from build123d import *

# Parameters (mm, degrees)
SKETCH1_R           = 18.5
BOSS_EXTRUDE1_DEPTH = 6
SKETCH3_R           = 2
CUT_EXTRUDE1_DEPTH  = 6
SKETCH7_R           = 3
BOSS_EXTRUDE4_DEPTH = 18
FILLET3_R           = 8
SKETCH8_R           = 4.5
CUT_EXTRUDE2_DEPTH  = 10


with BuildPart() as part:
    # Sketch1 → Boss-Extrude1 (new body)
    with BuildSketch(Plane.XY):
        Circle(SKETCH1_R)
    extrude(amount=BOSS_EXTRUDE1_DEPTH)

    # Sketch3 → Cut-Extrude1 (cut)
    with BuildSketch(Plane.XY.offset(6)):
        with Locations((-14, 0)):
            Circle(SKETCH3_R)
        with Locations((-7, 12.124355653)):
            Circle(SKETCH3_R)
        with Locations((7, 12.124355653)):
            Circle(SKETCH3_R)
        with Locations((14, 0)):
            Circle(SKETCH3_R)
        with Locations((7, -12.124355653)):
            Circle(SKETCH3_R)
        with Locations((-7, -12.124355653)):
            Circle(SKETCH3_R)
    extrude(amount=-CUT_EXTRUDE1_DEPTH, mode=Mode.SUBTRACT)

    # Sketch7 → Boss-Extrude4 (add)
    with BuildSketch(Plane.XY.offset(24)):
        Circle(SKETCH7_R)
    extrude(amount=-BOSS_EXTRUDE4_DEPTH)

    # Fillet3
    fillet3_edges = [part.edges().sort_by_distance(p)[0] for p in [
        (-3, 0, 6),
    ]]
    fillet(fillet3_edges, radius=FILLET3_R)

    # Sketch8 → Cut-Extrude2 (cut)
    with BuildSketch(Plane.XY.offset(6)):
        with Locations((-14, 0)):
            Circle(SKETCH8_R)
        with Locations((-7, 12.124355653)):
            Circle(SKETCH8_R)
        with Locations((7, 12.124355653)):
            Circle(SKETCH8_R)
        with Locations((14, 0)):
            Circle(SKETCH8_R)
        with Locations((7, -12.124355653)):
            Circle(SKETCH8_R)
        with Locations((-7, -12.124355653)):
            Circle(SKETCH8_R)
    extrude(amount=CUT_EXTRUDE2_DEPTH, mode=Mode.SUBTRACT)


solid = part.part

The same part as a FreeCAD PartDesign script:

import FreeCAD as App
import Part
import Sketcher
Q = App.Units.Quantity


def edges_at(feature, points):
    """Names of the edges that pass closest to the given points."""
    edges = feature.Shape.Edges
    near = lambda p: min(range(len(edges)), key=lambda i: edges[i].distToShape(Part.Vertex(*p))[0])
    return sorted({f"Edge{near(p) + 1}" for p in points})

doc = App.newDocument("Part")
body = doc.addObject("PartDesign::Body", "Body")

# Sketch on XY plane
sketch1 = doc.addObject("Sketcher::SketchObject", "Sketch")
body.addObject(sketch1)
sketch1.AttachmentSupport = (doc.XY_Plane, [""])
sketch1.MapMode = "FlatFace"
sketch1.addGeometry(Part.Circle(App.Vector(0, 0, 0), App.Vector(0, 0, 1), 18.5), False)
sketch1.addConstraint([
    Sketcher.Constraint("Coincident", 0, 3, -1, 1),
    Sketcher.Constraint("Diameter", 0, Q("37 mm")),
])
pad1 = doc.addObject("PartDesign::Pad", "Pad")
body.addObject(pad1)
pad1.Profile = sketch1
pad1.Length = 6

# Sketch on XY plane
sketch2 = doc.addObject("Sketcher::SketchObject", "Sketch001")
body.addObject(sketch2)
sketch2.AttachmentSupport = (doc.XY_Plane, [""])
sketch2.MapMode = "FlatFace"
sketch2.AttachmentOffset = App.Placement(App.Vector(0, 0, 6), App.Rotation())
sketch2.addGeometry([
    Part.Circle(App.Vector(-14, 0, 0), App.Vector(0, 0, 1), 2),  # 0
    Part.Circle(App.Vector(-7, 12.124356, 0), App.Vector(0, 0, 1), 2),  # 1
    Part.Circle(App.Vector(7, 12.124356, 0), App.Vector(0, 0, 1), 2),  # 2
    Part.Circle(App.Vector(14, 0, 0), App.Vector(0, 0, 1), 2),  # 3
    Part.Circle(App.Vector(7, -12.124356, 0), App.Vector(0, 0, 1), 2),  # 4
    Part.Circle(App.Vector(-7, -12.124356, 0), App.Vector(0, 0, 1), 2),  # 5
], False)
sketch2.addConstraint([
    Sketcher.Constraint("Equal", 0, 1),
    Sketcher.Constraint("Equal", 1, 2),
    Sketcher.Constraint("Equal", 2, 3),
    Sketcher.Constraint("Equal", 3, 4),
    Sketcher.Constraint("Equal", 4, 5),
    Sketcher.Constraint("Symmetric", 0, 3, 3, 3, -1, 1),
    Sketcher.Constraint("Symmetric", 1, 3, 4, 3, -1, 1),
    Sketcher.Constraint("Symmetric", 2, 3, 5, 3, -1, 1),
    Sketcher.Constraint("Symmetric", 1, 3, 2, 3, -2),
    Sketcher.Constraint("PointOnObject", 0, 3, -1),
    Sketcher.Constraint("Diameter", 0, Q("4 mm")),
    Sketcher.Constraint("DistanceX", 0, 3, -1, 1, Q("14 mm")),
    Sketcher.Constraint("DistanceX", 1, 3, -1, 1, Q("7 mm")),
    Sketcher.Constraint("DistanceY", 4, 3, 2, 3, Q("24.248711 mm")),
])
pocket1 = doc.addObject("PartDesign::Pocket", "Pocket")
body.addObject(pocket1)
pocket1.Profile = sketch2
pocket1.Length = 6

# Sketch on XY plane
sketch3 = doc.addObject("Sketcher::SketchObject", "Sketch002")
body.addObject(sketch3)
sketch3.AttachmentSupport = (doc.XY_Plane, [""])
sketch3.MapMode = "FlatFace"
sketch3.AttachmentOffset = App.Placement(App.Vector(0, 0, 24), App.Rotation())
sketch3.addGeometry(Part.Circle(App.Vector(0, 0, 0), App.Vector(0, 0, 1), 3), False)
sketch3.addConstraint([
    Sketcher.Constraint("Coincident", 0, 3, -1, 1),
    Sketcher.Constraint("Diameter", 0, Q("6 mm")),
])
pad2 = doc.addObject("PartDesign::Pad", "Pad001")
body.addObject(pad2)
pad2.Profile = sketch3
pad2.Length = 18
pad2.Reversed = True
doc.recompute()

fillet = doc.addObject("PartDesign::Fillet", "Fillet")
body.addObject(fillet)
fillet.Base = (pad2, edges_at(pad2, [(-3, 0, 6)]))
fillet.Radius = 8

# Sketch on XY plane
sketch4 = doc.addObject("Sketcher::SketchObject", "Sketch003")
body.addObject(sketch4)
sketch4.AttachmentSupport = (doc.XY_Plane, [""])
sketch4.MapMode = "FlatFace"
sketch4.AttachmentOffset = App.Placement(App.Vector(0, 0, 6), App.Rotation())
sketch4.addGeometry([
    Part.Circle(App.Vector(-14, 0, 0), App.Vector(0, 0, 1), 4.5),  # 0
    Part.Circle(App.Vector(-7, 12.124356, 0), App.Vector(0, 0, 1), 4.5),  # 1
    Part.Circle(App.Vector(7, 12.124356, 0), App.Vector(0, 0, 1), 4.5),  # 2
    Part.Circle(App.Vector(14, 0, 0), App.Vector(0, 0, 1), 4.5),  # 3
    Part.Circle(App.Vector(7, -12.124356, 0), App.Vector(0, 0, 1), 4.5),  # 4
    Part.Circle(App.Vector(-7, -12.124356, 0), App.Vector(0, 0, 1), 4.5),  # 5
], False)
sketch4.addConstraint([
    Sketcher.Constraint("Equal", 0, 1),
    Sketcher.Constraint("Equal", 1, 2),
    Sketcher.Constraint("Equal", 2, 3),
    Sketcher.Constraint("Equal", 3, 4),
    Sketcher.Constraint("Equal", 4, 5),
    Sketcher.Constraint("Symmetric", 0, 3, 3, 3, -1, 1),
    Sketcher.Constraint("Symmetric", 1, 3, 4, 3, -1, 1),
    Sketcher.Constraint("Symmetric", 2, 3, 5, 3, -1, 1),
    Sketcher.Constraint("Symmetric", 1, 3, 2, 3, -2),
    Sketcher.Constraint("PointOnObject", 0, 3, -1),
    Sketcher.Constraint("Diameter", 0, Q("9 mm")),
    Sketcher.Constraint("DistanceX", 0, 3, -1, 1, Q("14 mm")),
    Sketcher.Constraint("DistanceX", 1, 3, -1, 1, Q("7 mm")),
    Sketcher.Constraint("DistanceY", 4, 3, 2, 3, Q("24.248711 mm")),
])
pocket2 = doc.addObject("PartDesign::Pocket", "Pocket001")
body.addObject(pocket2)
pocket2.Profile = sketch4
pocket2.Length = 10
pocket2.Reversed = True

doc.recompute()
